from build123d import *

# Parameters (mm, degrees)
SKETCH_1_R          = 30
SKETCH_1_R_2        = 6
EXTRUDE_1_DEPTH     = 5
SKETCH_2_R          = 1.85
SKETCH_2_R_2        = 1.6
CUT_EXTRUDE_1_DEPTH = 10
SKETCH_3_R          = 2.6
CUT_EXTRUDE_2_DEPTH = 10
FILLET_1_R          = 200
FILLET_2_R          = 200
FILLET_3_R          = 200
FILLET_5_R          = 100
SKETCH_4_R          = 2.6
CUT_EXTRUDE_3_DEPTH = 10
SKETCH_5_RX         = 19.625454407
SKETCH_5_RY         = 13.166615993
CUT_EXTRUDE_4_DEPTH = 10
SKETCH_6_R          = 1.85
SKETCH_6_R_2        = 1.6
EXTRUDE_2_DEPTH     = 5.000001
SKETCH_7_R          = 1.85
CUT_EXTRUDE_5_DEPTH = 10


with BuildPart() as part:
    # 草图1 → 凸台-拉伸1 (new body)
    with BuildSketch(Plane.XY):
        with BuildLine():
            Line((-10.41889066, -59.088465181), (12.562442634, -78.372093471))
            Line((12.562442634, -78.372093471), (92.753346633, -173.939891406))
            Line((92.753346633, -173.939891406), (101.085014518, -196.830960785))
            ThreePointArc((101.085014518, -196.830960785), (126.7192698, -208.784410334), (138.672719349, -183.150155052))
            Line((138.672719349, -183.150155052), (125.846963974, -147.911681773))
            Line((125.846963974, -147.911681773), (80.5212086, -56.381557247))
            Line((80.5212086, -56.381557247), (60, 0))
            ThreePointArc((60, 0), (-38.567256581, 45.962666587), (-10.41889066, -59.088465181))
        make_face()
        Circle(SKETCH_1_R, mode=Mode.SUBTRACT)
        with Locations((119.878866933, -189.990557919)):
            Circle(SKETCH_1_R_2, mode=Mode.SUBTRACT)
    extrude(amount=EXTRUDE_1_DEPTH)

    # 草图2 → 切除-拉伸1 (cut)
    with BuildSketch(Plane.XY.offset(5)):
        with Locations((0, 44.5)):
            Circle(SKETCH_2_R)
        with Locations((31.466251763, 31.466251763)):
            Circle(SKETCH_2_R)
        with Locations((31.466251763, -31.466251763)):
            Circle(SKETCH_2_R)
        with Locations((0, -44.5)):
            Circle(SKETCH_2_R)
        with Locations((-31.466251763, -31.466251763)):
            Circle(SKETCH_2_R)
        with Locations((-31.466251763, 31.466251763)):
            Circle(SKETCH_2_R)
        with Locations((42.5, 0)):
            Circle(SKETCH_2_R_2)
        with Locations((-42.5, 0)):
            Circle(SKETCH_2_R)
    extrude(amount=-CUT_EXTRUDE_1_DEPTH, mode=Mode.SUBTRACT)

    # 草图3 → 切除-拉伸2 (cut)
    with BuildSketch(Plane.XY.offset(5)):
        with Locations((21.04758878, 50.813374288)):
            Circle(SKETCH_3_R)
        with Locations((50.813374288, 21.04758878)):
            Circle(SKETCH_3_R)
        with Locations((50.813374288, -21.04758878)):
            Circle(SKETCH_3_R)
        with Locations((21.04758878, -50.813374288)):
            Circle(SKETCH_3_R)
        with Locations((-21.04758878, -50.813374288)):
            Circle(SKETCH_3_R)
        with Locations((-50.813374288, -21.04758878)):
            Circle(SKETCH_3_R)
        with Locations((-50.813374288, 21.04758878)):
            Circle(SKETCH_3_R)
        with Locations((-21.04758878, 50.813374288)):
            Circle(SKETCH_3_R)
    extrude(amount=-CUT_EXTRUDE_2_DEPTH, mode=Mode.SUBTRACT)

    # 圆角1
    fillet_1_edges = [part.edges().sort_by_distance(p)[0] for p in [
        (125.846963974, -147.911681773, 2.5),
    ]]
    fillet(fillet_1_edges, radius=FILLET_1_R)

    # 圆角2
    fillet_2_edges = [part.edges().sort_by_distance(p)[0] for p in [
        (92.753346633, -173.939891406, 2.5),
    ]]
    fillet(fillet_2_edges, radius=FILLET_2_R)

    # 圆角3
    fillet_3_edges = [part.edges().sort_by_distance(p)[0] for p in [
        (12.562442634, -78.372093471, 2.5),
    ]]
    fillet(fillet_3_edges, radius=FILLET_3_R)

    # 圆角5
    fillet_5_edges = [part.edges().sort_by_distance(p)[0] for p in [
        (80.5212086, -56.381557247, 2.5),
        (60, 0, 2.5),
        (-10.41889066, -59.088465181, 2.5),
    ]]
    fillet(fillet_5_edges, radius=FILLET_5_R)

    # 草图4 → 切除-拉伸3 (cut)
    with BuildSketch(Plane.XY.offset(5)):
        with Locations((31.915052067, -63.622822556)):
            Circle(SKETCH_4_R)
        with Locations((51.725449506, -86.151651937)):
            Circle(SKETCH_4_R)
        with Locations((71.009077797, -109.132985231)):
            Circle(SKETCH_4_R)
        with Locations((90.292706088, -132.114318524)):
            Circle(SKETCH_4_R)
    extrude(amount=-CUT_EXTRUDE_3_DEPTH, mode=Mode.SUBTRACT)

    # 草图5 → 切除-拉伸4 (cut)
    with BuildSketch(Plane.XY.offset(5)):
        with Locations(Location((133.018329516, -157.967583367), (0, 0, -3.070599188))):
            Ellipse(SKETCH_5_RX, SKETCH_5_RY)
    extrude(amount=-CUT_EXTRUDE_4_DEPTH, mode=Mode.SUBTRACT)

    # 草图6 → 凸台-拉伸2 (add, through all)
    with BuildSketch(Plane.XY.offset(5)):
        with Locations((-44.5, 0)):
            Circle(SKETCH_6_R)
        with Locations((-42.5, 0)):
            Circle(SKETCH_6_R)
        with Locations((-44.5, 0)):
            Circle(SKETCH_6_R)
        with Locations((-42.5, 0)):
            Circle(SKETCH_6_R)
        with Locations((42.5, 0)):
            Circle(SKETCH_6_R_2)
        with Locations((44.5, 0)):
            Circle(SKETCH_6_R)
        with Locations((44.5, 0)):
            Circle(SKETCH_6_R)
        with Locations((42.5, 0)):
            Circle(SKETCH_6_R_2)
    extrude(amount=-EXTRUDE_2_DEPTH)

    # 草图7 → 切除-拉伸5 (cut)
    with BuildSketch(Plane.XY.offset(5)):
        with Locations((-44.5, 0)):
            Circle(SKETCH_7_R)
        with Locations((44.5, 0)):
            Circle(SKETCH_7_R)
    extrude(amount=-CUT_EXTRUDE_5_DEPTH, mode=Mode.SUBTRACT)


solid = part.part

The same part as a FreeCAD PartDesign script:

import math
import FreeCAD as App
import Part
import Sketcher
from FreeCAD import Vector
Q = App.Units.Quantity


def edges_at(feature, points):
    """Names of the edges that pass closest to the given points."""
    edges = feature.Shape.Edges
    near = lambda p: min(range(len(edges)), key=lambda i: edges[i].distToShape(Part.Vertex(*p))[0])
    return sorted({f"Edge{near(p) + 1}" for p in points})

doc = App.newDocument("Part")
body = doc.addObject("PartDesign::Body", "Body")

# Sketch on XY plane
sketch1 = body.newObject("Sketcher::SketchObject", "Sketch")
sketch1.AttachmentSupport = (doc.getObject("XY_Plane"), [""])
sketch1.MapMode = "FlatFace"
sketch1.addGeometry([
    Part.LineSegment(Vector(-10, -59, 0), Vector(13, -78, 0)),  # 0
    Part.LineSegment(Vector(13, -78, 0), Vector(93, -174, 0)),  # 1
    Part.LineSegment(Vector(93, -174, 0), Vector(101, -197, 0)),  # 2
    Part.ArcOfCircle(Part.Circle(Vector(120, -190, 0), Vector(0, 0, 1), 20), math.radians(-160), math.radians(20)),  # 3
    Part.LineSegment(Vector(139, -183, 0), Vector(126, -148, 0)),  # 4
    Part.LineSegment(Vector(126, -148, 0), Vector(81, -56, 0)),  # 5
    Part.LineSegment(Vector(81, -56, 0), Vector(60, 0, 0)),  # 6
    Part.ArcOfCircle(Part.Circle(Vector(0, 0, 0), Vector(0, 0, 1), 60), math.radians(0), math.radians(260)),  # 7
    Part.Circle(Vector(120, -190, 0), Vector(0, 0, 1), 6),  # 8
    Part.Circle(Vector(0, 0, 0), Vector(0, 0, 1), 30),  # 9
], False)
sketch1.addConstraint([
    Sketcher.Constraint("Coincident", 0, 2, 1, 1),
    Sketcher.Constraint("Coincident", 1, 2, 2, 1),
    Sketcher.Constraint("Tangent", 2, 2, 3, 1),
    Sketcher.Constraint("Tangent", 3, 2, 4, 1),
    Sketcher.Constraint("Coincident", 4, 2, 5, 1),
    Sketcher.Constraint("Coincident", 5, 2, 6, 1),
    Sketcher.Constraint("Coincident", 6, 2, 7, 1),
    Sketcher.Constraint("Coincident", 7, 2, 0, 1),
    Sketcher.Constraint("Coincident", 7, 3, -1, 1),
    Sketcher.Constraint("Coincident", 9, 3, -1, 1),
    Sketcher.Constraint("Coincident", 8, 3, 3, 3),
    Sketcher.Constraint("PointOnObject", 6, 2, -1),
    Sketcher.Constraint("Parallel", 2, 4),
    Sketcher.Constraint("Parallel", 4, 6),
    Sketcher.Constraint("Diameter", 8, Q("12 mm")),
    Sketcher.Constraint("Diameter", 9, Q("60 mm")),
    Sketcher.Constraint("Radius", 3, Q("20 mm")),
    Sketcher.Constraint("Radius", 7, Q("60 mm")),
    Sketcher.Constraint("Angle", 0, Q("-40 deg")),
    Sketcher.Constraint("Angle", 1, Q("-50 deg")),
    Sketcher.Constraint("Angle", 2, Q("-70 deg")),
    Sketcher.Constraint("Distance", 0, Q("30 mm")),
    Sketcher.Constraint("Distance", 6, Q("60 mm")),
    Sketcher.Constraint("Distance", 4, Q("37.5 mm")),
    Sketcher.Constraint("Distance", 1, Q("124.7549 mm")),
    Sketcher.Constraint("DistanceX", 7, 2, 5, 2, Q("90.940099 mm")),
    Sketcher.Constraint("DistanceY", 2, 2, -1, 1, Q("196.830961 mm")),
])
pad1 = body.newObject("PartDesign::Pad", "Pad")
pad1.Profile = sketch1
pad1.Length = 5

# Sketch on XY plane
sketch2 = body.newObject("Sketcher::SketchObject", "Sketch001")
sketch2.AttachmentSupport = (doc.getObject("XY_Plane"), [""])
sketch2.MapMode = "FlatFace"
sketch2.AttachmentOffset = App.Placement(Vector(0, 0, 5), App.Rotation())
sketch2.addGeometry([
    Part.Circle(Vector(0, 44.5, 0), Vector(0, 0, 1), 1.9),  # 0
    Part.Circle(Vector(31.5, 31.5, 0), Vector(0, 0, 1), 1.9),  # 1
    Part.Circle(Vector(31.5, -31.5, 0), Vector(0, 0, 1), 1.9),  # 2
    Part.Circle(Vector(0, -44.5, 0), Vector(0, 0, 1), 1.9),  # 3
    Part.Circle(Vector(-31.5, -31.5, 0), Vector(0, 0, 1), 1.9),  # 4
    Part.Circle(Vector(-31.5, 31.5, 0), Vector(0, 0, 1), 1.9),  # 5
    Part.Circle(Vector(42.5, 0, 0), Vector(0, 0, 1), 1.6),  # 6
    Part.Circle(Vector(-42.5, 0, 0), Vector(0, 0, 1), 1.9),  # 7
], False)
sketch2.addConstraint([
    Sketcher.Constraint("Equal", 0, 1),
    Sketcher.Constraint("Equal", 1, 2),
    Sketcher.Constraint("Equal", 2, 3),
    Sketcher.Constraint("Equal", 3, 4),
    Sketcher.Constraint("Equal", 4, 5),
    Sketcher.Constraint("Equal", 5, 7),
    Sketcher.Constraint("Symmetric", 0, 3, 3, 3, -1, 1),
    Sketcher.Constraint("Symmetric", 1, 3, 4, 3, -1, 1),
    Sketcher.Constraint("Symmetric", 2, 3, 5, 3, -1, 1),
    Sketcher.Constraint("Symmetric", 6, 3, 7, 3, -1, 1),
    Sketcher.Constraint("Symmetric", 2, 3, 4, 3, -2),
    Sketcher.Constraint("PointOnObject", 0, 3, -2),
    Sketcher.Constraint("PointOnObject", 6, 3, -1),
    Sketcher.Constraint("Diameter", 0, Q("3.7 mm")),
    Sketcher.Constraint("Diameter", 6, Q("3.2 mm")),
    Sketcher.Constraint("DistanceY", 3, 3, 0, 3, Q("89 mm")),
    Sketcher.Constraint("DistanceX", -1, 1, 6, 3, Q("42.5 mm")),
    Sketcher.Constraint("DistanceX", -1, 1, 1, 3, Q("31.466252 mm")),
    Sketcher.Constraint("DistanceY", -1, 1, 1, 3, Q("31.466252 mm")),
])
pocket1 = body.newObject("PartDesign::Pocket", "Pocket")
pocket1.Profile = sketch2
pocket1.Length = 10

# Sketch on XY plane
sketch3 = body.newObject("Sketcher::SketchObject", "Sketch002")
sketch3.AttachmentSupport = (doc.getObject("XY_Plane"), [""])
sketch3.MapMode = "FlatFace"
sketch3.AttachmentOffset = App.Placement(Vector(0, 0, 5), App.Rotation())
sketch3.addGeometry([
    Part.Circle(Vector(21, 50.8, 0), Vector(0, 0, 1), 2.6),  # 0
    Part.Circle(Vector(50.8, 21, 0), Vector(0, 0, 1), 2.6),  # 1
    Part.Circle(Vector(50.8, -21, 0), Vector(0, 0, 1), 2.6),  # 2
    Part.Circle(Vector(21, -50.8, 0), Vector(0, 0, 1), 2.6),  # 3
    Part.Circle(Vector(-21, -50.8, 0), Vector(0, 0, 1), 2.6),  # 4
    Part.Circle(Vector(-50.8, -21, 0), Vector(0, 0, 1), 2.6),  # 5
    Part.Circle(Vector(-50.8, 21, 0), Vector(0, 0, 1), 2.6),  # 6
    Part.Circle(Vector(-21, 50.8, 0), Vector(0, 0, 1), 2.6),  # 7
], False)
sketch3.addConstraint([
    Sketcher.Constraint("Equal", 0, 1),
    Sketcher.Constraint("Equal", 1, 2),
    Sketcher.Constraint("Equal", 2, 3),
    Sketcher.Constraint("Equal", 3, 4),
    Sketcher.Constraint("Equal", 4, 5),
    Sketcher.Constraint("Equal", 5, 6),
    Sketcher.Constraint("Equal", 6, 7),
    Sketcher.Constraint("Symmetric", 0, 3, 4, 3, -1, 1),
    Sketcher.Constraint("Symmetric", 1, 3, 5, 3, -1, 1),
    Sketcher.Constraint("Symmetric", 2, 3, 6, 3, -1, 1),
    Sketcher.Constraint("Symmetric", 3, 3, 7, 3, -1, 1),
    Sketcher.Constraint("Symmetric", 3, 3, 4, 3, -2),
    Sketcher.Constraint("Symmetric", 2, 3, 5, 3, -2),
    Sketcher.Constraint("Diameter", 0, Q("5.2 mm")),
    Sketcher.Constraint("DistanceX", -1, 1, 0, 3, Q("21.047589 mm")),
    Sketcher.Constraint("DistanceY", -1, 1, 1, 3, Q("21.047589 mm")),
    Sketcher.Constraint("DistanceY", 3, 3, 0, 3, Q("101.626749 mm")),
    Sketcher.Constraint("DistanceX", 5, 3, 2, 3, Q("101.626749 mm")),
])
pocket2 = body.newObject("PartDesign::Pocket", "Pocket001")
pocket2.Profile = sketch3
pocket2.Length = 10
doc.recompute()

fillet = body.newObject("PartDesign::Fillet", "Fillet")
fillet.Base = (pocket2, edges_at(pocket2, [(125.847, -147.912, 2.5)]))
fillet.Radius = 200
doc.recompute()

fillet2 = body.newObject("PartDesign::Fillet", "Fillet001")
fillet2.Base = (fillet, edges_at(fillet, [(92.753, -173.94, 2.5)]))
fillet2.Radius = 200
doc.recompute()

fillet3 = body.newObject("PartDesign::Fillet", "Fillet002")
fillet3.Base = (fillet2, edges_at(fillet2, [(12.562, -78.372, 2.5)]))
fillet3.Radius = 200
doc.recompute()

fillet4 = body.newObject("PartDesign::Fillet", "Fillet003")
fillet4.Base = (fillet3, edges_at(fillet3, [(80.521, -56.382, 2.5), (60, 0, 2.5), (-10.419, -59.088, 2.5)]))
fillet4.Radius = 100

# Sketch on XY plane
sketch4 = body.newObject("Sketcher::SketchObject", "Sketch003")
sketch4.AttachmentSupport = (doc.getObject("XY_Plane"), [""])
sketch4.MapMode = "FlatFace"
sketch4.AttachmentOffset = App.Placement(Vector(0, 0, 5), App.Rotation())
sketch4.addGeometry([
    Part.Circle(Vector(31.9, -63.6, 0), Vector(0, 0, 1), 2.6),
    Part.Circle(Vector(51.7, -86.2, 0), Vector(0, 0, 1), 2.6),
    Part.Circle(Vector(71, -109.1, 0), Vector(0, 0, 1), 2.6),
    Part.Circle(Vector(90.3, -132.1, 0), Vector(0, 0, 1), 2.6),
], False)
sketch4.addConstraint([
    Sketcher.Constraint("Equal", 0, 1),
    Sketcher.Constraint("Equal", 1, 2),
    Sketcher.Constraint("Equal", 2, 3),
    Sketcher.Constraint("Diameter", 0, Q("5.2 mm")),
    Sketcher.Constraint("DistanceX", -1, 1, 1, 3, Q("51.72545 mm")),
    Sketcher.Constraint("DistanceY", 1, 3, -1, 1, Q("86.151652 mm")),
    Sketcher.Constraint("DistanceY", 3, 3, -1, 1, Q("132.114319 mm")),
    Sketcher.Constraint("DistanceY", 1, 3, 0, 3, Q("22.528829 mm")),
    Sketcher.Constraint("DistanceX", 1, 3, 2, 3, Q("19.283628 mm")),
    Sketcher.Constraint("DistanceX", 2, 3, 3, 3, Q("19.283628 mm")),
    Sketcher.Constraint("DistanceX", -1, 1, 0, 3, Q("31.915052 mm")),
    Sketcher.Constraint("DistanceY", 2, 3, -1, 1, Q("109.132985 mm")),
])
pocket3 = body.newObject("PartDesign::Pocket", "Pocket002")
pocket3.Profile = sketch4
pocket3.Length = 10

# Sketch on XY plane
sketch5 = body.newObject("Sketcher::SketchObject", "Sketch004")
sketch5.AttachmentSupport = (doc.getObject("XY_Plane"), [""])
sketch5.MapMode = "FlatFace"
sketch5.AttachmentOffset = App.Placement(Vector(0, 0, 5), App.Rotation())
sketch5.addGeometry(Part.Ellipse(Vector(152.615607, -159.018849, 0), Vector(133.723618, -144.819871, 0), Vector(133.01833, -157.967583, 0)), False)
sketch5.addConstraint(Sketcher.Constraint("Block", 0))
pocket4 = body.newObject("PartDesign::Pocket", "Pocket003")
pocket4.Profile = sketch5
pocket4.Length = 10

# Sketch on XY plane
sketch6 = body.newObject("Sketcher::SketchObject", "Sketch005")
sketch6.AttachmentSupport = (doc.getObject("XY_Plane"), [""])
sketch6.MapMode = "FlatFace"
sketch6.AttachmentOffset = App.Placement(Vector(0, 0, 5), App.Rotation())
sketch6.addGeometry([
    Part.ArcOfCircle(Part.Circle(Vector(-44.5, 0, 0), Vector(0, 0, 1), 1.9), math.radians(57), math.radians(303)),
    Part.ArcOfCircle(Part.Circle(Vector(-42.5, 0, 0), Vector(0, 0, 1), 1.9), math.radians(-123), math.radians(123)),
    Part.ArcOfCircle(Part.Circle(Vector(42.5, 0, 0), Vector(0, 0, 1), 1.6), math.radians(61), math.radians(299)),
    Part.ArcOfCircle(Part.Circle(Vector(44.5, 0, 0), Vector(0, 0, 1), 1.9), math.radians(-131), math.radians(131)),
], False)
sketch6.addConstraint([
    Sketcher.Constraint("Coincident", 0, 1, 1, 2),
    Sketcher.Constraint("Coincident", 1, 1, 0, 2),
    Sketcher.Constraint("Coincident", 2, 1, 3, 2),
    Sketcher.Constraint("Coincident", 3, 1, 2, 2),
    Sketcher.Constraint("Equal", 0, 1),
    Sketcher.Constraint("Equal", 1, 3),
    Sketcher.Constraint("Symmetric", 1, 3, 2, 3, -1, 1),
    Sketcher.Constraint("Symmetric", 0, 3, 3, 3, -1, 1),
    Sketcher.Constraint("Symmetric", 0, 1, 1, 1, -1),
    Sketcher.Constraint("Radius", 2, Q("1.6 mm")),
    Sketcher.Constraint("Radius", 0, Q("1.85 mm")),
    Sketcher.Constraint("DistanceX", 0, 3, 1, 3, Q("2 mm")),
    Sketcher.Constraint("DistanceX", 1, 3, 2, 3, Q("85 mm")),
])
pad2 = body.newObject("PartDesign::Pad", "Pad001")
pad2.Profile = sketch6
pad2.Length = 5.000001
pad2.Reversed = True

# Sketch on XY plane
sketch7 = body.newObject("Sketcher::SketchObject", "Sketch006")
sketch7.AttachmentSupport = (doc.getObject("XY_Plane"), [""])
sketch7.MapMode = "FlatFace"
sketch7.AttachmentOffset = App.Placement(Vector(0, 0, 5), App.Rotation())
sketch7.addGeometry([
    Part.Circle(Vector(-44.5, 0, 0), Vector(0, 0, 1), 1.9),
    Part.Circle(Vector(44.5, 0, 0), Vector(0, 0, 1), 1.9),
], False)
sketch7.addConstraint([
    Sketcher.Constraint("Equal", 0, 1),
    Sketcher.Constraint("Symmetric", 0, 3, 1, 3, -1, 1),
    Sketcher.Constraint("PointOnObject", 0, 3, -1),
    Sketcher.Constraint("Diameter", 0, Q("3.7 mm")),
    Sketcher.Constraint("DistanceX", 0, 3, 1, 3, Q("89 mm")),
])
pocket5 = body.newObject("PartDesign::Pocket", "Pocket004")
pocket5.Profile = sketch7
pocket5.Length = 10

doc.recompute()
